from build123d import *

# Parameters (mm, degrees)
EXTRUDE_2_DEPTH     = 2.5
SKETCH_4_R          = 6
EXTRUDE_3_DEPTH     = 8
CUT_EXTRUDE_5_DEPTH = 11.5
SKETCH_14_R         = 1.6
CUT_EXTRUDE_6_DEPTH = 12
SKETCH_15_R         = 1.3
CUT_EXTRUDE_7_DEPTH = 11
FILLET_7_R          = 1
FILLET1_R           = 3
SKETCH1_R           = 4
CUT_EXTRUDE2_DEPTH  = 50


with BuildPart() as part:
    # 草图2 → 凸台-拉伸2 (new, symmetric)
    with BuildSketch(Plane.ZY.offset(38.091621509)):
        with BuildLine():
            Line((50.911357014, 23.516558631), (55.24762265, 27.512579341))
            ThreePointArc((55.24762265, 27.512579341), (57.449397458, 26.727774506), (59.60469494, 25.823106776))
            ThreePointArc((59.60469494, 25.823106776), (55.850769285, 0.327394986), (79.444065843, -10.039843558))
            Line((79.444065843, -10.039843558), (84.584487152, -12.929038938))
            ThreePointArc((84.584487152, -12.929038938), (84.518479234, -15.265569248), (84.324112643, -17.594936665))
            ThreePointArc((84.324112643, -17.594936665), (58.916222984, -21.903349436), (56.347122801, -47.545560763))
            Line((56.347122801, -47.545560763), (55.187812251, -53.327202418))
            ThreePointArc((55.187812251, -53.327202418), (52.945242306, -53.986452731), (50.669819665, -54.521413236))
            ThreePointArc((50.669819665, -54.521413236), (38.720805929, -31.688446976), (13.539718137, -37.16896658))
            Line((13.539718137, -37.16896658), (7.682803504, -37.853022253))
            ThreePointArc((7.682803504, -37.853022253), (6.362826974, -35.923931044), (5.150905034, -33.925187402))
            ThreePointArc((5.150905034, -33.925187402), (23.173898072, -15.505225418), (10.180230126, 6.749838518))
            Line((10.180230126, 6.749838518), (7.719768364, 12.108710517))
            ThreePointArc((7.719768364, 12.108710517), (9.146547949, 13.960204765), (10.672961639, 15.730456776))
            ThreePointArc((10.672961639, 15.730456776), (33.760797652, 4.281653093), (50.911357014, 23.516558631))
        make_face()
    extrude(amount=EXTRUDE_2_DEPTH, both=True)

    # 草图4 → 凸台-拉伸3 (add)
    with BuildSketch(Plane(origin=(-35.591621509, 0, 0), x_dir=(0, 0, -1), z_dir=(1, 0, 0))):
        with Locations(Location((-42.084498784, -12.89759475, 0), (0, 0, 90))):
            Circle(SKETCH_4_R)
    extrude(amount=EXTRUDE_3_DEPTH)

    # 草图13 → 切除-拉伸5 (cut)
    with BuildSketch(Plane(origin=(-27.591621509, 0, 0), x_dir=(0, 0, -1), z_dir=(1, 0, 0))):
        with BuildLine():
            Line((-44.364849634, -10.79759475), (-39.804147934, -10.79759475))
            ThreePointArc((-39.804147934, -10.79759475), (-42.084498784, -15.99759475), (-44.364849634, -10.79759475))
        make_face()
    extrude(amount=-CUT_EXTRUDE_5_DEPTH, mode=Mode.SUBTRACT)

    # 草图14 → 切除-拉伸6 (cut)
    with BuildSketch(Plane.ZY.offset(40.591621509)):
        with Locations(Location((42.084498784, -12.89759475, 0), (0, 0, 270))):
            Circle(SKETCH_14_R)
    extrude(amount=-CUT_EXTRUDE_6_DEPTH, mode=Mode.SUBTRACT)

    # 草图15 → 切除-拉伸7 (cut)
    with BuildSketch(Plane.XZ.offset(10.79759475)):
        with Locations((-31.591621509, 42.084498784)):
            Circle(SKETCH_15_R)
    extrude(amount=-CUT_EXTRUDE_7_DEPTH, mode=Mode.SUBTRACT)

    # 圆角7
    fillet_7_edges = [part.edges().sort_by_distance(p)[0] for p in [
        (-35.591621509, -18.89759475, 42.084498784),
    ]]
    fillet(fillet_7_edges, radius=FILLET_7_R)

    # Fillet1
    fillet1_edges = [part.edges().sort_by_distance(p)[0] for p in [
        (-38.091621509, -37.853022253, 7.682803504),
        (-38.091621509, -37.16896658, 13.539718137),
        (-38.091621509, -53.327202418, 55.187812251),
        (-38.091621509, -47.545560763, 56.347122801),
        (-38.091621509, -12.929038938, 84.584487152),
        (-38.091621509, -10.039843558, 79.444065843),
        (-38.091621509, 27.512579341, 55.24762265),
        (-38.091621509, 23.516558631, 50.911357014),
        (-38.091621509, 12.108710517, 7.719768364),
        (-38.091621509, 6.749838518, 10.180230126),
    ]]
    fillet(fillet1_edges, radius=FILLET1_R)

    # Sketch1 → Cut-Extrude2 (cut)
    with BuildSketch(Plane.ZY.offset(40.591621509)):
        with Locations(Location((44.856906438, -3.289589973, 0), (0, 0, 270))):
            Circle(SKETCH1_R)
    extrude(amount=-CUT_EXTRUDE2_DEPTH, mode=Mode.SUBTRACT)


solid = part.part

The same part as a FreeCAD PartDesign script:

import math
import FreeCAD as App
import Part
import Sketcher


def edges_at(feature, points):
    """Names of the edges that pass closest to the given points."""
    edges = feature.Shape.Edges
    near = lambda p: min(range(len(edges)), key=lambda i: edges[i].distToShape(Part.Vertex(*p))[0])
    return sorted({f"Edge{near(p) + 1}" for p in points})

doc = App.newDocument("Part")
body = doc.addObject("PartDesign::Body", "Body")

# Sketch on YZ plane
sketch1 = body.newObject("Sketcher::SketchObject", "Sketch")
sketch1.AttachmentSupport = (doc.getObject("YZ_Plane"), [""])
sketch1.MapMode = "FlatFace"
sketch1.AttachmentOffset = App.Placement(App.Vector(0, 0, -38.091622), App.Rotation())
sketch1.addGeometry(Part.LineSegment(App.Vector(27.5, 55.2, 0), App.Vector(23.5, 50.9, 0)), False)
sketch1.addGeometry(Part.ArcOfCircle(Part.Circle(App.Vector(25.1, 29.7, 0), App.Vector(0, 0, 1), 21.2), math.radians(94), math.radians(244)), False)
sketch1.addGeometry(Part.ArcOfCircle(Part.Circle(App.Vector(-12.9, 42.1, 0), App.Vector(0, 0, 1), 42.5), math.radians(-53.96), math.radians(-47.65)), False)
sketch1.addGeometry(Part.LineSegment(App.Vector(12.1, 7.7, 0), App.Vector(6.7, 10.2, 0)), False)
sketch1.addGeometry(Part.ArcOfCircle(Part.Circle(App.Vector(-12.9, 2.1, 0), App.Vector(0, 0, 1), 21.2), math.radians(22), math.radians(172)), False)
sketch1.addGeometry(Part.ArcOfCircle(Part.Circle(App.Vector(-12.9, 42.1, 0), App.Vector(0, 0, 1), 42.5), math.radians(-125.96), math.radians(-119.65)), False)
sketch1.addGeometry(Part.LineSegment(App.Vector(-37.9, 7.7, 0), App.Vector(-37.2, 13.5, 0)), False)
sketch1.addGeometry(Part.ArcOfCircle(Part.Circle(App.Vector(-50.9, 29.7, 0), App.Vector(0, 0, 1), 21.2), math.radians(-50), math.radians(100)), False)
sketch1.addGeometry(Part.ArcOfCircle(Part.Circle(App.Vector(-12.9, 42.1, 0), App.Vector(0, 0, 1), 42.5), math.radians(162.04), math.radians(168.35)), False)
sketch1.addGeometry(Part.LineSegment(App.Vector(-53.3, 55.2, 0), App.Vector(-47.5, 56.3, 0)), False)
sketch1.addGeometry(Part.ArcOfCircle(Part.Circle(App.Vector(-36.4, 74.4, 0), App.Vector(0, 0, 1), 21.2), math.radians(-122), math.radians(28)), False)
sketch1.addGeometry(Part.ArcOfCircle(Part.Circle(App.Vector(-12.9, 42.1, 0), App.Vector(0, 0, 1), 42.5), math.radians(90.04), math.radians(96.35)), False)
sketch1.addGeometry(Part.LineSegment(App.Vector(-12.9, 84.6, 0), App.Vector(-10, 79.4, 0)), False)
sketch1.addGeometry(Part.ArcOfCircle(Part.Circle(App.Vector(10.6, 74.4, 0), App.Vector(0, 0, 1), 21.2), math.radians(166), math.radians(316)), False)
sketch1.addGeometry(Part.ArcOfCircle(Part.Circle(App.Vector(-12.9, 42.1, 0), App.Vector(0, 0, 1), 42.5), math.radians(18.04), math.radians(24.35)), False)
sketch1.addConstraint(Sketcher.Constraint("Coincident", 0, 2, 1, 1))
sketch1.addConstraint(Sketcher.Constraint("Coincident", 1, 2, 2, 2))
sketch1.addConstraint(Sketcher.Constraint("Coincident", 2, 1, 3, 1))
sketch1.addConstraint(Sketcher.Constraint("Coincident", 3, 2, 4, 1))
sketch1.addConstraint(Sketcher.Constraint("Coincident", 4, 2, 5, 2))
sketch1.addConstraint(Sketcher.Constraint("Coincident", 5, 1, 6, 1))
sketch1.addConstraint(Sketcher.Constraint("Coincident", 6, 2, 7, 1))
sketch1.addConstraint(Sketcher.Constraint("Coincident", 7, 2, 8, 2))
sketch1.addConstraint(Sketcher.Constraint("Coincident", 8, 1, 9, 1))
sketch1.addConstraint(Sketcher.Constraint("Coincident", 9, 2, 10, 1))
sketch1.addConstraint(Sketcher.Constraint("Coincident", 10, 2, 11, 2))
sketch1.addConstraint(Sketcher.Constraint("Coincident", 11, 1, 12, 1))
sketch1.addConstraint(Sketcher.Constraint("Coincident", 12, 2, 13, 1))
sketch1.addConstraint(Sketcher.Constraint("Coincident", 13, 2, 14, 2))
sketch1.addConstraint(Sketcher.Constraint("Coincident", 14, 1, 0, 1))
sketch1.addConstraint(Sketcher.Constraint("Coincident", 5, 3, 2, 3))
sketch1.addConstraint(Sketcher.Constraint("Coincident", 8, 3, 2, 3))
sketch1.addConstraint(Sketcher.Constraint("Coincident", 11, 3, 2, 3))
sketch1.addConstraint(Sketcher.Constraint("Coincident", 14, 3, 2, 3))
sketch1.addConstraint(Sketcher.Constraint("Equal", 1, 4))
sketch1.addConstraint(Sketcher.Constraint("Equal", 2, 5))
sketch1.addConstraint(Sketcher.Constraint("Equal", 4, 7))
sketch1.addConstraint(Sketcher.Constraint("Equal", 5, 8))
sketch1.addConstraint(Sketcher.Constraint("Equal", 7, 10))
sketch1.addConstraint(Sketcher.Constraint("Equal", 8, 11))
sketch1.addConstraint(Sketcher.Constraint("Equal", 10, 13))
sketch1.addConstraint(Sketcher.Constraint("Equal", 11, 14))
sketch1.addConstraint(Sketcher.Constraint("Horizontal", 1, 3, 7, 3))
sketch1.addConstraint(Sketcher.Constraint("Horizontal", 10, 3, 13, 3))
sketch1.addConstraint(Sketcher.Constraint("Vertical", 2, 3, 4, 3))
sketch1.addConstraint(Sketcher.Constraint("Equal", 0, 3))
sketch1.addConstraint(Sketcher.Constraint("Equal", 3, 6))
sketch1.addConstraint(Sketcher.Constraint("Equal", 6, 9))
sketch1.addConstraint(Sketcher.Constraint("Equal", 9, 12))
sketch1.addConstraint(Sketcher.Constraint("Radius", 2, 42.5))
sketch1.addConstraint(Sketcher.Constraint("Radius", 1, 21.25))
sketch1.addConstraint(Sketcher.Constraint("DistanceY", 4, 3, 2, 3, 40.0))
sketch1.addConstraint(Sketcher.Constraint("DistanceY", 7, 3, 7, 2, 20.946001))
sketch1.addConstraint(Sketcher.Constraint("DistanceY", -1, 1, 2, 3, 42.084499))
sketch1.addConstraint(Sketcher.Constraint("DistanceX", 1, 2, 0, 2, 7.786102))
sketch1.addConstraint(Sketcher.Constraint("DistanceY", 4, 2, 5, 1, 2.531898))
sketch1.addConstraint(Sketcher.Constraint("DistanceY", 6, 2, 7, 3, 16.184101))
sketch1.addConstraint(Sketcher.Constraint("DistanceX", 11, 3, 13, 2, 38.720702))
sketch1.addConstraint(Sketcher.Constraint("DistanceY", -1, 1, 1, 3, 29.723819))
sketch1.addConstraint(Sketcher.Constraint("DistanceY", -1, 1, 10, 3, 74.445179))
sketch1.addConstraint(Sketcher.Constraint("DistanceX", -1, 1, 0, 2, 23.516559))
sketch1.addConstraint(Sketcher.Constraint("DistanceY", -1, 1, 1, 2, 10.672962))
sketch1.addConstraint(Sketcher.Constraint("DistanceX", -1, 1, 2, 1, 12.108711))
sketch1.addConstraint(Sketcher.Constraint("DistanceX", 9, 2, -1, 1, 47.545561))
sketch1.addConstraint(Sketcher.Constraint("DistanceX", 11, 1, -1, 1, 12.929039))
sketch1.addConstraint(Sketcher.Constraint("DistanceX", 10, 3, 8, 3, 23.51141))
pad1 = body.newObject("PartDesign::Pad", "Pad")
pad1.Profile = sketch1
pad1.Length = 5
pad1.Midplane = True

# Sketch on YZ plane
sketch2 = body.newObject("Sketcher::SketchObject", "Sketch001")
sketch2.AttachmentSupport = (doc.getObject("YZ_Plane"), [""])
sketch2.MapMode = "FlatFace"
sketch2.AttachmentOffset = App.Placement(App.Vector(0, 0, -35.591622), App.Rotation())
sketch2.addGeometry(Part.Circle(App.Vector(-13, 42, 0), App.Vector(0, 0, 1), 6), False)
sketch2.addConstraint(Sketcher.Constraint("Diameter", 0, 12.0))
sketch2.addConstraint(Sketcher.Constraint("DistanceY", -1, 1, 0, 3, 42.084499))
sketch2.addConstraint(Sketcher.Constraint("DistanceX", 0, 3, -1, 1, 12.897595))
pad2 = body.newObject("PartDesign::Pad", "Pad001")
pad2.Profile = sketch2
pad2.Length = 8

# Sketch on YZ plane
sketch3 = body.newObject("Sketcher::SketchObject", "Sketch002")
sketch3.AttachmentSupport = (doc.getObject("YZ_Plane"), [""])
sketch3.MapMode = "FlatFace"
sketch3.AttachmentOffset = App.Placement(App.Vector(0, 0, -27.591622), App.Rotation())
sketch3.addGeometry(Part.LineSegment(App.Vector(-10.8, 39.8, 0), App.Vector(-10.8, 44.4, 0)), False)
sketch3.addGeometry(Part.ArcOfCircle(Part.Circle(App.Vector(-12.9, 42.1, 0), App.Vector(0, 0, 1), 3.1), math.radians(47), math.radians(313)), False)
sketch3.addConstraint(Sketcher.Constraint("Coincident", 0, 1, 1, 2))
sketch3.addConstraint(Sketcher.Constraint("Coincident", 1, 1, 0, 2))
sketch3.addConstraint(Sketcher.Constraint("Vertical", 0))
sketch3.addConstraint(Sketcher.Constraint("Radius", 1, 3.1))
sketch3.addConstraint(Sketcher.Constraint("DistanceX", 1, 3, 0, 1, 2.1))
sketch3.addConstraint(Sketcher.Constraint("DistanceY", -1, 1, 1, 3, 42.084499))
sketch3.addConstraint(Sketcher.Constraint("DistanceX", 1, 3, -1, 1, 12.897595))
pocket1 = body.newObject("PartDesign::Pocket", "Pocket")
pocket1.Profile = sketch3
pocket1.Length = 11.5

# Sketch on YZ plane
sketch4 = body.newObject("Sketcher::SketchObject", "Sketch003")
sketch4.AttachmentSupport = (doc.getObject("YZ_Plane"), [""])
sketch4.MapMode = "FlatFace"
sketch4.AttachmentOffset = App.Placement(App.Vector(0, 0, -40.591622), App.Rotation())
sketch4.addGeometry(Part.Circle(App.Vector(-12.9, 42.1, 0), App.Vector(0, 0, 1), 1.6), False)
sketch4.addConstraint(Sketcher.Constraint("Diameter", 0, 3.2))
sketch4.addConstraint(Sketcher.Constraint("DistanceY", -1, 1, 0, 3, 42.084499))
sketch4.addConstraint(Sketcher.Constraint("DistanceX", 0, 3, -1, 1, 12.897595))
pocket2 = body.newObject("PartDesign::Pocket", "Pocket001")
pocket2.Profile = sketch4
pocket2.Length = 12
pocket2.Reversed = True

# Sketch on XZ plane
sketch5 = body.newObject("Sketcher::SketchObject", "Sketch004")
sketch5.AttachmentSupport = (doc.getObject("XZ_Plane"), [""])
sketch5.MapMode = "FlatFace"
sketch5.AttachmentOffset = App.Placement(App.Vector(0, 0, 10.797595), App.Rotation())
sketch5.addGeometry(Part.Circle(App.Vector(-31.6, 42.1, 0), App.Vector(0, 0, 1), 1.3), False)
sketch5.addConstraint(Sketcher.Constraint("Diameter", 0, 2.6))
sketch5.addConstraint(Sketcher.Constraint("DistanceY", -1, 1, 0, 3, 42.084499))
sketch5.addConstraint(Sketcher.Constraint("DistanceX", 0, 3, -1, 1, 31.591622))
pocket3 = body.newObject("PartDesign::Pocket", "Pocket002")
pocket3.Profile = sketch5
pocket3.Length = 11
doc.recompute()

fillet = body.newObject("PartDesign::Fillet", "Fillet")
fillet.Base = (pocket3, edges_at(pocket3, [(-35.592, -18.898, 42.084)]))
fillet.Radius = 1
doc.recompute()

fillet2 = body.newObject("PartDesign::Fillet", "Fillet001")
fillet2.Base = (fillet, edges_at(fillet, [
    (-38.092, -37.853, 7.683),
    (-38.092, -37.169, 13.54),
    (-38.092, -53.327, 55.188),
    (-38.092, -47.546, 56.347),
    (-38.092, -12.929, 84.584),
    (-38.092, -10.04, 79.444),
    (-38.092, 27.513, 55.248),
    (-38.092, 23.517, 50.911),
    (-38.092, 12.109, 7.72),
    (-38.092, 6.75, 10.18),
]))
fillet2.Radius = 3

# Sketch on YZ plane
sketch6 = body.newObject("Sketcher::SketchObject", "Sketch005")
sketch6.AttachmentSupport = (doc.getObject("YZ_Plane"), [""])
sketch6.MapMode = "FlatFace"
sketch6.AttachmentOffset = App.Placement(App.Vector(0, 0, -40.591622), App.Rotation())
sketch6.addGeometry(Part.Circle(App.Vector(-3.3, 44.9, 0), App.Vector(0, 0, 1), 4), False)
sketch6.addConstraint(Sketcher.Constraint("Diameter", 0, 8.0))
sketch6.addConstraint(Sketcher.Constraint("DistanceX", 0, 3, -1, 1, 3.28959))
sketch6.addConstraint(Sketcher.Constraint("DistanceY", -1, 1, 0, 3, 44.856906))
pocket4 = body.newObject("PartDesign::Pocket", "Pocket003")
pocket4.Profile = sketch6
pocket4.Length = 50
pocket4.Reversed = True

doc.recompute()
